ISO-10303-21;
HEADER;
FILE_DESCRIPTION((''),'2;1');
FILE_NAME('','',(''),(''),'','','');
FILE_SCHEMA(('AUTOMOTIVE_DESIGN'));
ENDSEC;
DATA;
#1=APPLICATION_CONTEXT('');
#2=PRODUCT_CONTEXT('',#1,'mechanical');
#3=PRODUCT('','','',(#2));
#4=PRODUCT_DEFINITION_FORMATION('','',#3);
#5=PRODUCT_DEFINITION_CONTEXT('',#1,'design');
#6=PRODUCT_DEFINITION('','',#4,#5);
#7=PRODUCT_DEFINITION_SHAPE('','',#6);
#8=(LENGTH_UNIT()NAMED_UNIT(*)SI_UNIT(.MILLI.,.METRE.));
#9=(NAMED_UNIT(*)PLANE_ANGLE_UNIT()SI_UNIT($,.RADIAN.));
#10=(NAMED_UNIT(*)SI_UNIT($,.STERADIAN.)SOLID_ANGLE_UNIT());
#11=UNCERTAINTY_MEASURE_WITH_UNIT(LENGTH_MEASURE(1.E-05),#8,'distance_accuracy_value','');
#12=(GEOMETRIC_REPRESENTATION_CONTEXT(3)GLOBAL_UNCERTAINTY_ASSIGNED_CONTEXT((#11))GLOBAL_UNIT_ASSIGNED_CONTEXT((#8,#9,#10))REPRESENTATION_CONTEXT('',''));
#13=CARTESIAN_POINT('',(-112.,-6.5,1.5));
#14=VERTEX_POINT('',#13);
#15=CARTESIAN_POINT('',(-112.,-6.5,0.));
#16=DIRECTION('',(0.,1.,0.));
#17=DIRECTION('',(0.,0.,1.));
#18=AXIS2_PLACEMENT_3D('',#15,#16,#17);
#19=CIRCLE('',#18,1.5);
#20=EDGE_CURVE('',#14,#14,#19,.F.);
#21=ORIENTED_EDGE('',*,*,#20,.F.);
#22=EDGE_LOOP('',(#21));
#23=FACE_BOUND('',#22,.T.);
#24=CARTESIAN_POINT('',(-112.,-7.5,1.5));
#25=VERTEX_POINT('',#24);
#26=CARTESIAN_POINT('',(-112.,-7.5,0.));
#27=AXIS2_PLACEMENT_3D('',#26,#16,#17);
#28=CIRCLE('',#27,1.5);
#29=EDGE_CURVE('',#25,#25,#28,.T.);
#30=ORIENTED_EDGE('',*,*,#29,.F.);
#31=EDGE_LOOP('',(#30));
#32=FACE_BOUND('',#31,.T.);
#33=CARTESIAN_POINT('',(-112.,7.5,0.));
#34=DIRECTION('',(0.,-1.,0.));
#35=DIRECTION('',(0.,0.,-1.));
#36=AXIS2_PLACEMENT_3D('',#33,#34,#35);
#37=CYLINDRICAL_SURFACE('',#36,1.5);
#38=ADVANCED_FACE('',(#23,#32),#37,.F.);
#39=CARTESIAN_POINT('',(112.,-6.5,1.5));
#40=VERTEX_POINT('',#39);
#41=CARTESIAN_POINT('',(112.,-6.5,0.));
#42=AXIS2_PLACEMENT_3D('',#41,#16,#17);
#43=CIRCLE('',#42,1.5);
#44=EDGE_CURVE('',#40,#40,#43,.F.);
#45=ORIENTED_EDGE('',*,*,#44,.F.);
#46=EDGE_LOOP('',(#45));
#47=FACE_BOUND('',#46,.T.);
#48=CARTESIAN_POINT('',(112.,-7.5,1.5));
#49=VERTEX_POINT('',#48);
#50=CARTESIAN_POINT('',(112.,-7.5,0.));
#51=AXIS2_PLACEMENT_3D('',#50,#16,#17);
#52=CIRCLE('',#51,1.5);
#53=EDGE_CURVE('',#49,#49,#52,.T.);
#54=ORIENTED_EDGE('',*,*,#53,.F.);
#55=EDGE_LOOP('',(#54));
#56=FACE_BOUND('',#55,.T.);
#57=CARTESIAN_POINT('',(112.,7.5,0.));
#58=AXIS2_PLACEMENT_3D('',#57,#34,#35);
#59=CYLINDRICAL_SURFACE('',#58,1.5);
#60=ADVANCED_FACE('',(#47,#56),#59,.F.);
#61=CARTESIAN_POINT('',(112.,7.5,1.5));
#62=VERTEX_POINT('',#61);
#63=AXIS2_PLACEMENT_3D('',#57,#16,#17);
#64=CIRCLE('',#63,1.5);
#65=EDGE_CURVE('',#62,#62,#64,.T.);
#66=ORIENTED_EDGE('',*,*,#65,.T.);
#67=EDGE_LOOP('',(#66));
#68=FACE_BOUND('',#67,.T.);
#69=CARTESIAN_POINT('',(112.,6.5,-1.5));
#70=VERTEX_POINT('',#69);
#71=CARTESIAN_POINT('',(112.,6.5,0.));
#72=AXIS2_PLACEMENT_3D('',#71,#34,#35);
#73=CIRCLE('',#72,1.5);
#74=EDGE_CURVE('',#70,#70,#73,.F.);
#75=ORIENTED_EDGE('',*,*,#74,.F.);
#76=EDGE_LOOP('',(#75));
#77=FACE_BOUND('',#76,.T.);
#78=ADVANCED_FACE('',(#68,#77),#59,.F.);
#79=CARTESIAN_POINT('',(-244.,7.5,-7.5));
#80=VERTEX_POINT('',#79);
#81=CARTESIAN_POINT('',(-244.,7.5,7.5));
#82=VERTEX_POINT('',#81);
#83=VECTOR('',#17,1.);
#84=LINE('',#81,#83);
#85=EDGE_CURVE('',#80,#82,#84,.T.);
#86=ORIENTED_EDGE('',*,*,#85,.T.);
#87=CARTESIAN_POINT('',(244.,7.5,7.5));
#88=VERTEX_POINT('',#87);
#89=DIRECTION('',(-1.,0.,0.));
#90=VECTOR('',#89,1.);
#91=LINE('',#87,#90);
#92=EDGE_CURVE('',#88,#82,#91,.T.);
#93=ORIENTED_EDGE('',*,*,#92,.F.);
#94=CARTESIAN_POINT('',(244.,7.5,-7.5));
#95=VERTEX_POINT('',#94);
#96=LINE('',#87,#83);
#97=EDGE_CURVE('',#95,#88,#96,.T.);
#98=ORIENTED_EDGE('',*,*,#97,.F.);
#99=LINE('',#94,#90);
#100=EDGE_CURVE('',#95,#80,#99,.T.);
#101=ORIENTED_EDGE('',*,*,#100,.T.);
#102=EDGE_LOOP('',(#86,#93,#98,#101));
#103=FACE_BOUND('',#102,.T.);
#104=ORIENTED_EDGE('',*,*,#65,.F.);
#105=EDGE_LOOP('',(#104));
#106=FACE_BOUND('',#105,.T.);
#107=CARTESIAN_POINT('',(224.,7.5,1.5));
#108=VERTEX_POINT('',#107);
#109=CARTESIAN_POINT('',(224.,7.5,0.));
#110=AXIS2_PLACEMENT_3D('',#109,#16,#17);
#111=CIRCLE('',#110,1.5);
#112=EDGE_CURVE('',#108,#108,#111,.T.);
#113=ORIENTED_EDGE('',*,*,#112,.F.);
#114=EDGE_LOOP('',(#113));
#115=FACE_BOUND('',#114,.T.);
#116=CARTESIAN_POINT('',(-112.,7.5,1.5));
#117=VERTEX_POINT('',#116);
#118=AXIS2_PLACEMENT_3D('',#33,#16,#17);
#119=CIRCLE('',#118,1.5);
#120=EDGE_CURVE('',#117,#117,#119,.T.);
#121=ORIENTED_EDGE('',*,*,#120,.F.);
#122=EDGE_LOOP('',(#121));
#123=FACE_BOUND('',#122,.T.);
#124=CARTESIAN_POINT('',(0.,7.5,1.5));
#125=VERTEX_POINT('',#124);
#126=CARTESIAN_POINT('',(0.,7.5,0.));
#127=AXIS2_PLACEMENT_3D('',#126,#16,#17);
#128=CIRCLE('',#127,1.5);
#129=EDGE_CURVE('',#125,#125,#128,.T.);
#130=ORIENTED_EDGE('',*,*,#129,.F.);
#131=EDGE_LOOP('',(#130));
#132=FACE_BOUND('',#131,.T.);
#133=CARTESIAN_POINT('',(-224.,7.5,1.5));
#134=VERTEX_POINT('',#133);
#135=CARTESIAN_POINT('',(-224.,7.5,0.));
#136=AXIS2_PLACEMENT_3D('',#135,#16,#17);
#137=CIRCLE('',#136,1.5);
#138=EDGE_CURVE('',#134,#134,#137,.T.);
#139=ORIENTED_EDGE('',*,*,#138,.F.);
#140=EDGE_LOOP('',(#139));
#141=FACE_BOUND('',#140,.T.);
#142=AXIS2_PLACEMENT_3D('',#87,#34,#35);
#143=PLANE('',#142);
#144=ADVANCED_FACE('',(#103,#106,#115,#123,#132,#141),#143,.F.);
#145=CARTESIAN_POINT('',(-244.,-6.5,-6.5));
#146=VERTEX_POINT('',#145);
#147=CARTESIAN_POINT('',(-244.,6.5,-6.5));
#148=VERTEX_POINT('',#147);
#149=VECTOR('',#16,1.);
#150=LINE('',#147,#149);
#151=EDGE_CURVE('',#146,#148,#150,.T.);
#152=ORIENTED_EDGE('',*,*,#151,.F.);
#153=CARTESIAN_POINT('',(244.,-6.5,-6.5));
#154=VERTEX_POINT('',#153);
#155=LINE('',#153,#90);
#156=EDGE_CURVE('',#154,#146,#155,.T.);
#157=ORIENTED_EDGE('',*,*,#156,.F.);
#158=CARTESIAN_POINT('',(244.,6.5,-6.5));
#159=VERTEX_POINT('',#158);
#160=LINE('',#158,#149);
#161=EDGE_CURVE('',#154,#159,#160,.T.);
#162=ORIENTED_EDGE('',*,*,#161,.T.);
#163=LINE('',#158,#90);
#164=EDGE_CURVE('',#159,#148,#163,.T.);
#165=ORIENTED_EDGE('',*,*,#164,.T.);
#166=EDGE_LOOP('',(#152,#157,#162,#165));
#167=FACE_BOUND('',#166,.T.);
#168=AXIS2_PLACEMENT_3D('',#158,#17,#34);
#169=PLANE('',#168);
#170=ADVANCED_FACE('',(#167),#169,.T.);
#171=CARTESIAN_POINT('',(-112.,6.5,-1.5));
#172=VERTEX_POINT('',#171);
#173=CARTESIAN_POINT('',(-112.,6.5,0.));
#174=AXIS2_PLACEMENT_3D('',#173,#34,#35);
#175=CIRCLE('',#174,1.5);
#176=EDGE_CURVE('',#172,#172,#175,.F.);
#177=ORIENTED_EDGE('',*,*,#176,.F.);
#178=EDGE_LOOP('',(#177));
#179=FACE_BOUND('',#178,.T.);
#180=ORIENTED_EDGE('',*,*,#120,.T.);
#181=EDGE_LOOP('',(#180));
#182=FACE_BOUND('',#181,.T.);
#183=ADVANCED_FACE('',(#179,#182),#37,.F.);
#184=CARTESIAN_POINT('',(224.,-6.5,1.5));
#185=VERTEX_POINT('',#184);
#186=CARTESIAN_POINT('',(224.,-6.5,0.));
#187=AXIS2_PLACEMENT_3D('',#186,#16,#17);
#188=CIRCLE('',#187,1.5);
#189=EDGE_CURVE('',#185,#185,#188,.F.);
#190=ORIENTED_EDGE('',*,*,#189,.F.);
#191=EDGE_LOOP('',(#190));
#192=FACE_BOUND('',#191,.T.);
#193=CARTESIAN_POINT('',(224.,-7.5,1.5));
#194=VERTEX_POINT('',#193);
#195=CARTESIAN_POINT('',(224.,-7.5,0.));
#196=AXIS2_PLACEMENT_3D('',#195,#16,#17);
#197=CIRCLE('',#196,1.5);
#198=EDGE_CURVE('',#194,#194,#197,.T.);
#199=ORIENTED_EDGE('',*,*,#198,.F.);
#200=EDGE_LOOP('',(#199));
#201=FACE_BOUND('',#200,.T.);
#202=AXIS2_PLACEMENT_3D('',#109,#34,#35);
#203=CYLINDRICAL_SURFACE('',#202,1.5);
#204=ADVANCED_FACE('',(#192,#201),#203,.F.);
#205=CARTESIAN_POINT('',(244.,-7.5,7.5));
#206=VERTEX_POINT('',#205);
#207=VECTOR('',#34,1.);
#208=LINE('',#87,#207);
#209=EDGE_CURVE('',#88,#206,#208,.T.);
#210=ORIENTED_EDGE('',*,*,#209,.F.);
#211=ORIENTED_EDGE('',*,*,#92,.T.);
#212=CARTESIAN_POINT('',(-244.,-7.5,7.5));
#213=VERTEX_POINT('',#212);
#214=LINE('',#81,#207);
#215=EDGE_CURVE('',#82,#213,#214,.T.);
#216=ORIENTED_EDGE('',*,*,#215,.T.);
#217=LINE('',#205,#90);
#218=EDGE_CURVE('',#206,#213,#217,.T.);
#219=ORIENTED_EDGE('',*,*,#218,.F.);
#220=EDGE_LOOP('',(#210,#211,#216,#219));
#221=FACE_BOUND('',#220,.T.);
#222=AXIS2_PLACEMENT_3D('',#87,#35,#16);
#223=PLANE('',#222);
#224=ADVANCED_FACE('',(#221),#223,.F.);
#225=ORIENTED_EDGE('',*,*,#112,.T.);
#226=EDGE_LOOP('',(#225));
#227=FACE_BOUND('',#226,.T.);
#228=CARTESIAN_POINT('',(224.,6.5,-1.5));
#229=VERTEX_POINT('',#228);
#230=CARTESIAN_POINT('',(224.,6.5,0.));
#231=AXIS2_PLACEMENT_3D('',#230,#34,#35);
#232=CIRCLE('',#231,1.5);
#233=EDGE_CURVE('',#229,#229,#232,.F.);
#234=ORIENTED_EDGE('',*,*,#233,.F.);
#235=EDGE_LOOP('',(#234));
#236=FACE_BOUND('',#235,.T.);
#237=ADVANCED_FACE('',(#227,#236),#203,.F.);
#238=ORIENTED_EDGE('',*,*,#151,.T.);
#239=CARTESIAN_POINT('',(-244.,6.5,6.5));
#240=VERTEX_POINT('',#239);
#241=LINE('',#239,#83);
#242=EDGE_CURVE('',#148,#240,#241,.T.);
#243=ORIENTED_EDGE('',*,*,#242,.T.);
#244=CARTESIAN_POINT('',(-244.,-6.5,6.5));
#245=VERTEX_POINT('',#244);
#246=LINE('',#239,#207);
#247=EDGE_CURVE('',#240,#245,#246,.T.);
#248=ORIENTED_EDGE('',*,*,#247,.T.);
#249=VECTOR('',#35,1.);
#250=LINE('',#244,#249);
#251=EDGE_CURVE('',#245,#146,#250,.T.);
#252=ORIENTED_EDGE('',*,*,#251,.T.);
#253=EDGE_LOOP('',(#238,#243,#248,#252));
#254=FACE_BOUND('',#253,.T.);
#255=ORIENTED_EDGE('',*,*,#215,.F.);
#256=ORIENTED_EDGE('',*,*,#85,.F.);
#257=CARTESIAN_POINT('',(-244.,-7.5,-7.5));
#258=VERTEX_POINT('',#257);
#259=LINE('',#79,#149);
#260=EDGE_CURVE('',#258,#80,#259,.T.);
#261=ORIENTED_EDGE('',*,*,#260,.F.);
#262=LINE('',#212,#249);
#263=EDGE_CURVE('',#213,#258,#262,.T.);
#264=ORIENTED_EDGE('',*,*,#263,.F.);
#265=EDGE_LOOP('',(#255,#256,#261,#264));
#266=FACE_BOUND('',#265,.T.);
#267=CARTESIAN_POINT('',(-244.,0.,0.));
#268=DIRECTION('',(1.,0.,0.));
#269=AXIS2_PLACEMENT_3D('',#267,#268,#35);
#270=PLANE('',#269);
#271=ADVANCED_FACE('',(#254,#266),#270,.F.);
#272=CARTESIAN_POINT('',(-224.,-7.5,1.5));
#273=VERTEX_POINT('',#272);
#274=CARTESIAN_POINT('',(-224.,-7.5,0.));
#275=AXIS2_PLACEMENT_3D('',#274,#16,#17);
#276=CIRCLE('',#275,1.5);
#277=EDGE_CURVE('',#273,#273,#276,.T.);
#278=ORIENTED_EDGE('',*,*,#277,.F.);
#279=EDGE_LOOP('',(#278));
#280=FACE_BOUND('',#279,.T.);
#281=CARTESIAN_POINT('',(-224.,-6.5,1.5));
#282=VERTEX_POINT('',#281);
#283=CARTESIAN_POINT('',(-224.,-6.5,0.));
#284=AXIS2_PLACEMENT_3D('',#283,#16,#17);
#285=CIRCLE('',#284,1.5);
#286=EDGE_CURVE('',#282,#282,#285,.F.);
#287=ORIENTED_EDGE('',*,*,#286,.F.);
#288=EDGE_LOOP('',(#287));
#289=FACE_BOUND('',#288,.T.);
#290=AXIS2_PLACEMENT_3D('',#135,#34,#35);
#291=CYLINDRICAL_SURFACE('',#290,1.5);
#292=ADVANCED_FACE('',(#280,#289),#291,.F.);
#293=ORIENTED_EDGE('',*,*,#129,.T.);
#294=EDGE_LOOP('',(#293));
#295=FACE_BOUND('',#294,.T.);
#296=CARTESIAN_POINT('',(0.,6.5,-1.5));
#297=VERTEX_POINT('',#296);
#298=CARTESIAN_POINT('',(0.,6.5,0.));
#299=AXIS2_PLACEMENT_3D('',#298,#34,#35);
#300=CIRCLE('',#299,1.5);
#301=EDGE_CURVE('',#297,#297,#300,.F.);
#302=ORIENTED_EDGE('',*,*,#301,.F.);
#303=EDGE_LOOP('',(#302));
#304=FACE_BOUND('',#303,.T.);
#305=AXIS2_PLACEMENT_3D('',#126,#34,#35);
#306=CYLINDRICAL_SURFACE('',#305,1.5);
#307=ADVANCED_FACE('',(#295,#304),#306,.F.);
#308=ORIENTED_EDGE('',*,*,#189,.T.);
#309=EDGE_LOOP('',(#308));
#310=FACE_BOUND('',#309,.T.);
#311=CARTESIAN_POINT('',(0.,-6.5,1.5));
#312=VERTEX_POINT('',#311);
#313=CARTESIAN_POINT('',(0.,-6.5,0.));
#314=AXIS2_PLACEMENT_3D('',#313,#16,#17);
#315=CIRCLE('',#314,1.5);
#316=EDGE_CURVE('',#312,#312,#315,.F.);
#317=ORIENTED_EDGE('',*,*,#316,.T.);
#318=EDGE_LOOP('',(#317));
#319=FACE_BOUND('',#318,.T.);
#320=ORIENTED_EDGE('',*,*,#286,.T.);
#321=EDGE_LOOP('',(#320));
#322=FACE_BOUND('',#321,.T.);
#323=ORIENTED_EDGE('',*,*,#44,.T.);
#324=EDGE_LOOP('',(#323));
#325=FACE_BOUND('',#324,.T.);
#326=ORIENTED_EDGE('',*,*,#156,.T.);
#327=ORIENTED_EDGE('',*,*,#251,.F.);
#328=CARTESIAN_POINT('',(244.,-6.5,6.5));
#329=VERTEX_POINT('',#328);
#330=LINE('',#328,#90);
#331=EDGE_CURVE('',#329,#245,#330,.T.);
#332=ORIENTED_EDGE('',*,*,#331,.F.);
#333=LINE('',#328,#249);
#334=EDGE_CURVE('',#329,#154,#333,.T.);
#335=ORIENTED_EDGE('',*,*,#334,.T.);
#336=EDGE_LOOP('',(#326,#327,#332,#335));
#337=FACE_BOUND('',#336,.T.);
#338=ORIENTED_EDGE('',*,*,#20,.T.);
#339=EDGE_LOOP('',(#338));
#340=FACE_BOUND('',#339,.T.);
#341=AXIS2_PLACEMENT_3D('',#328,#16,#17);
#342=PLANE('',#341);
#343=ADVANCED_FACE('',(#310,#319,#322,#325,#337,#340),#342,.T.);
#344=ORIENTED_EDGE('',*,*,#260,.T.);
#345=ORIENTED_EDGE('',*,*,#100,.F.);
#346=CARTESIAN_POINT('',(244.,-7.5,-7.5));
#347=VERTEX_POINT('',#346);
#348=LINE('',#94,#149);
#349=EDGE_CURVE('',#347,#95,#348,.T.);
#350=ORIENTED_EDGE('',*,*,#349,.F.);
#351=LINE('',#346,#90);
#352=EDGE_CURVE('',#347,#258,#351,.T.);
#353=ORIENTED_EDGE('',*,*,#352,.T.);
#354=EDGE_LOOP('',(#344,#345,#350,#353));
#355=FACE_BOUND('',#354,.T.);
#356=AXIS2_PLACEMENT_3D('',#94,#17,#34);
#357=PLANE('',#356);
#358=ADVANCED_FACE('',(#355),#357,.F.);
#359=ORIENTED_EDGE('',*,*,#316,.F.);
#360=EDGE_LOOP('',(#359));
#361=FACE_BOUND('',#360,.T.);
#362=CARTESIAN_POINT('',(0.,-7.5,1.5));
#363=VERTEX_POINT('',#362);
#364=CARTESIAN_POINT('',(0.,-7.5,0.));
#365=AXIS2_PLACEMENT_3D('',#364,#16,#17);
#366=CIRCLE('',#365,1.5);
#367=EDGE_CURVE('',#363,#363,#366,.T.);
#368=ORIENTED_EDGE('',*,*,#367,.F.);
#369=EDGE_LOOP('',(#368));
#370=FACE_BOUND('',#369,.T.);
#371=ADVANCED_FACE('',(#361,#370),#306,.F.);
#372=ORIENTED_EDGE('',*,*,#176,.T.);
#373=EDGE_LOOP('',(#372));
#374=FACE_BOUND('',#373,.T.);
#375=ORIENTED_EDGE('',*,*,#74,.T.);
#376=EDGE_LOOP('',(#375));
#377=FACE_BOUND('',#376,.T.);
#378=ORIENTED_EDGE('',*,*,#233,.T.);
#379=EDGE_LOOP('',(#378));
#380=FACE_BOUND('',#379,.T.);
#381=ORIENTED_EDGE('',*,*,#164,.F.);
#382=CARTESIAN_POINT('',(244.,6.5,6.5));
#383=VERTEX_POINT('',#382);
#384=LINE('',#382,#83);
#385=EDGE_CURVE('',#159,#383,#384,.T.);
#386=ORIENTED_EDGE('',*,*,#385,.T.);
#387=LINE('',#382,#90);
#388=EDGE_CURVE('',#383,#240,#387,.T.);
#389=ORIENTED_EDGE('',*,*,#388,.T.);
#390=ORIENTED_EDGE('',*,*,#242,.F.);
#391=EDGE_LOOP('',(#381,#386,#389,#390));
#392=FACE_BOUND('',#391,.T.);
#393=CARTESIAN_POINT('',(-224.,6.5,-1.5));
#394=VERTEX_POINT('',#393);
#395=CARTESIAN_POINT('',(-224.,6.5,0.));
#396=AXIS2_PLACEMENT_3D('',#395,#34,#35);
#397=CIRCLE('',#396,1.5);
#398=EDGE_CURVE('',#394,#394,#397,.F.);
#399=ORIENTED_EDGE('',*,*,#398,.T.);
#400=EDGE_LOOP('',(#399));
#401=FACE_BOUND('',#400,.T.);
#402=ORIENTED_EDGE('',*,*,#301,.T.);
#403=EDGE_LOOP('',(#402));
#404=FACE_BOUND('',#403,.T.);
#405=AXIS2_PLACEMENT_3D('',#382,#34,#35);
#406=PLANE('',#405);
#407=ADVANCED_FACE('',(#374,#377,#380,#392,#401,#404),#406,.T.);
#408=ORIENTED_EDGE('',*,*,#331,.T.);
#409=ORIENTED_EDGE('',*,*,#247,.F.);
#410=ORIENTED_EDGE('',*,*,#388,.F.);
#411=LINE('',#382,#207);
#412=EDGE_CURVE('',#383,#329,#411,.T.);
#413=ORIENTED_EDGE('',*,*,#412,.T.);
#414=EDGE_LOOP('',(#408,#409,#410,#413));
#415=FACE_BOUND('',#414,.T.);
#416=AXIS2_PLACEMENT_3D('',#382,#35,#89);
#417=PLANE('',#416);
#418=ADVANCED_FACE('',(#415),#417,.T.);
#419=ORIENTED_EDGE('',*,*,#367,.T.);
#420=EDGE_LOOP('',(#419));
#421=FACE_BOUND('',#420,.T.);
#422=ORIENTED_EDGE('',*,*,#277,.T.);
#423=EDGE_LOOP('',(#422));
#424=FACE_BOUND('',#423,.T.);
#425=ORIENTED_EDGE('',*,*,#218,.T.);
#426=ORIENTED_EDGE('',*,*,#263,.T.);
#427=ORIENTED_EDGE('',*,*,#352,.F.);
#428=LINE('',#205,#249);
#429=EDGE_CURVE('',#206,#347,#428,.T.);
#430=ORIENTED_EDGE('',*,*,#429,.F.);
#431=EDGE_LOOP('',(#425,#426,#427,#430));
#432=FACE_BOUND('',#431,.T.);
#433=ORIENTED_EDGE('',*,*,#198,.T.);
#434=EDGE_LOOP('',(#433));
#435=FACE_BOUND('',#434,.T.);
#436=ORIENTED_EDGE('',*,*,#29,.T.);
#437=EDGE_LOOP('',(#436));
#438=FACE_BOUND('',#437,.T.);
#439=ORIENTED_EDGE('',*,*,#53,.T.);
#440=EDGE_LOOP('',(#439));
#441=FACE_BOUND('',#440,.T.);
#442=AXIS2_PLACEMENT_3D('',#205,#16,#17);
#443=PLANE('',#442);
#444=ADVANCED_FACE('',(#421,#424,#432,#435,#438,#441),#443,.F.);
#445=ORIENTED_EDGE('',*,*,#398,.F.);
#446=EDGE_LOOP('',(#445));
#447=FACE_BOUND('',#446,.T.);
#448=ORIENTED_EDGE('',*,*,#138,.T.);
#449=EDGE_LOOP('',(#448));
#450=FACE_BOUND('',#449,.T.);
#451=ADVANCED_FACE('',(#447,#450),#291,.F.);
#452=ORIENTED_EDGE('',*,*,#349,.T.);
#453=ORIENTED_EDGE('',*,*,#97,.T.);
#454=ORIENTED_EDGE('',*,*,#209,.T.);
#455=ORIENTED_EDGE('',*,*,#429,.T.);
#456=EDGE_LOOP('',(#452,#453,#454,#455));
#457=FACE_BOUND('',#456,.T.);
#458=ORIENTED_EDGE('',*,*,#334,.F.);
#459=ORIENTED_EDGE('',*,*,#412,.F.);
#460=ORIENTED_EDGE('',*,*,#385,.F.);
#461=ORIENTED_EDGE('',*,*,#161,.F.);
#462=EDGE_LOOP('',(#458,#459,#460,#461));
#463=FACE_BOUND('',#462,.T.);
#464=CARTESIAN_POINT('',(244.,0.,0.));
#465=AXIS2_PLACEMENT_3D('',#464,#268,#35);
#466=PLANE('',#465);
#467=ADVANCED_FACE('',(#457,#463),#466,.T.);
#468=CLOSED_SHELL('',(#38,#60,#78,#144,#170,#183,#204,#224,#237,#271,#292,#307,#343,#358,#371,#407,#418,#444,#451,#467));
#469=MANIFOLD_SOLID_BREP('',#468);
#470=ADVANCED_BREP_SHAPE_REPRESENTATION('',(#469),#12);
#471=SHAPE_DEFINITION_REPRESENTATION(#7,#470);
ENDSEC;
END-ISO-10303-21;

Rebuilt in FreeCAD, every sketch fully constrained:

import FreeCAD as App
import Part
import Sketcher


def add_polygon(sketch, points):
    """Adds a closed chain of lines whose ends are joined by coincident constraints."""
    first, n = sketch.GeometryCount, len(points)
    for a, b in zip(points, points[1:] + points[:1]):
        sketch.addGeometry(Part.LineSegment(App.Vector(*a, 0), App.Vector(*b, 0)), False)
    for i in range(n):
        sketch.addConstraint(Sketcher.Constraint("Coincident", first + i, 2, first + (i + 1) % n, 1))

doc = App.newDocument("Part")
body = doc.addObject("PartDesign::Body", "Body")

sketch1 = body.newObject("Sketcher::SketchObject", "Sketch")
sketch1.AttachmentSupport = (doc.getObject("YZ_Plane"), [""])
sketch1.MapMode = "FlatFace"
sketch1.AttachmentOffset = App.Placement(App.Vector(0, 0, -244), App.Rotation())
add_polygon(sketch1, [(7.5, 7.5), (-7.5, 7.5), (-7.5, -7.5), (7.5, -7.5)])
add_polygon(sketch1, [(-6.5, -6.5), (-6.5, 6.5), (6.5, 6.5), (6.5, -6.5)])
sketch1.addConstraint([
    Sketcher.Constraint("Horizontal", 0),
    Sketcher.Constraint("Vertical", 1),
    Sketcher.Constraint("Horizontal", 2),
    Sketcher.Constraint("Vertical", 3),
    Sketcher.Constraint("Vertical", 4),
    Sketcher.Constraint("Horizontal", 5),
    Sketcher.Constraint("Vertical", 6),
    Sketcher.Constraint("Horizontal", 7),
    Sketcher.Constraint("Symmetric", 0, 2, 2, 2, -1, 1),
    Sketcher.Constraint("Symmetric", 4, 2, 6, 2, -1, 1),
    Sketcher.Constraint("Equal", 2, 1),
    Sketcher.Constraint("Equal", 7, 4),
    Sketcher.Constraint("DistanceX", 0, 2, 0, 1, 15.0),
    Sketcher.Constraint("DistanceX", 5, 1, 5, 2, 13.0),
])
pad1 = body.newObject("PartDesign::Pad", "Pad")
pad1.Profile = sketch1
pad1.Length = 488

sketch2 = body.newObject("Sketcher::SketchObject", "Sketch001")
sketch2.AttachmentSupport = (doc.getObject("XZ_Plane"), [""])
sketch2.MapMode = "FlatFace"
sketch2.AttachmentOffset = App.Placement(App.Vector(0, 0, 7.5), App.Rotation())
sketch2.addGeometry([
    Part.Circle(App.Vector(-224, 0, 0), App.Vector(0, 0, 1), 1.5),
    Part.Circle(App.Vector(-112, 0, 0), App.Vector(0, 0, 1), 1.5),
    Part.Circle(App.Vector(0, 0, 0), App.Vector(0, 0, 1), 1.5),
    Part.Circle(App.Vector(112, 0, 0), App.Vector(0, 0, 1), 1.5),
    Part.Circle(App.Vector(224, 0, 0), App.Vector(0, 0, 1), 1.5),
], False)
sketch2.addConstraint([
    Sketcher.Constraint("Coincident", 2, 3, -1, 1),
    Sketcher.Constraint("Equal", 0, 1),
    Sketcher.Constraint("Equal", 1, 2),
    Sketcher.Constraint("Equal", 2, 3),
    Sketcher.Constraint("Equal", 3, 4),
    Sketcher.Constraint("Symmetric", 1, 3, 3, 3, -1, 1),
    Sketcher.Constraint("Symmetric", 0, 3, 4, 3, -1, 1),
    Sketcher.Constraint("PointOnObject", 0, 3, -1),
    Sketcher.Constraint("PointOnObject", 1, 3, -1),
    Sketcher.Constraint("Diameter", 0, 3.0),
    Sketcher.Constraint("DistanceX", 0, 3, -1, 1, 224.0),
    Sketcher.Constraint("DistanceX", 1, 3, -1, 1, 112.0),
])
pocket1 = body.newObject("PartDesign::Pocket", "Pocket")
pocket1.Profile = sketch2
pocket1.Type = "ThroughAll"

doc.recompute()
